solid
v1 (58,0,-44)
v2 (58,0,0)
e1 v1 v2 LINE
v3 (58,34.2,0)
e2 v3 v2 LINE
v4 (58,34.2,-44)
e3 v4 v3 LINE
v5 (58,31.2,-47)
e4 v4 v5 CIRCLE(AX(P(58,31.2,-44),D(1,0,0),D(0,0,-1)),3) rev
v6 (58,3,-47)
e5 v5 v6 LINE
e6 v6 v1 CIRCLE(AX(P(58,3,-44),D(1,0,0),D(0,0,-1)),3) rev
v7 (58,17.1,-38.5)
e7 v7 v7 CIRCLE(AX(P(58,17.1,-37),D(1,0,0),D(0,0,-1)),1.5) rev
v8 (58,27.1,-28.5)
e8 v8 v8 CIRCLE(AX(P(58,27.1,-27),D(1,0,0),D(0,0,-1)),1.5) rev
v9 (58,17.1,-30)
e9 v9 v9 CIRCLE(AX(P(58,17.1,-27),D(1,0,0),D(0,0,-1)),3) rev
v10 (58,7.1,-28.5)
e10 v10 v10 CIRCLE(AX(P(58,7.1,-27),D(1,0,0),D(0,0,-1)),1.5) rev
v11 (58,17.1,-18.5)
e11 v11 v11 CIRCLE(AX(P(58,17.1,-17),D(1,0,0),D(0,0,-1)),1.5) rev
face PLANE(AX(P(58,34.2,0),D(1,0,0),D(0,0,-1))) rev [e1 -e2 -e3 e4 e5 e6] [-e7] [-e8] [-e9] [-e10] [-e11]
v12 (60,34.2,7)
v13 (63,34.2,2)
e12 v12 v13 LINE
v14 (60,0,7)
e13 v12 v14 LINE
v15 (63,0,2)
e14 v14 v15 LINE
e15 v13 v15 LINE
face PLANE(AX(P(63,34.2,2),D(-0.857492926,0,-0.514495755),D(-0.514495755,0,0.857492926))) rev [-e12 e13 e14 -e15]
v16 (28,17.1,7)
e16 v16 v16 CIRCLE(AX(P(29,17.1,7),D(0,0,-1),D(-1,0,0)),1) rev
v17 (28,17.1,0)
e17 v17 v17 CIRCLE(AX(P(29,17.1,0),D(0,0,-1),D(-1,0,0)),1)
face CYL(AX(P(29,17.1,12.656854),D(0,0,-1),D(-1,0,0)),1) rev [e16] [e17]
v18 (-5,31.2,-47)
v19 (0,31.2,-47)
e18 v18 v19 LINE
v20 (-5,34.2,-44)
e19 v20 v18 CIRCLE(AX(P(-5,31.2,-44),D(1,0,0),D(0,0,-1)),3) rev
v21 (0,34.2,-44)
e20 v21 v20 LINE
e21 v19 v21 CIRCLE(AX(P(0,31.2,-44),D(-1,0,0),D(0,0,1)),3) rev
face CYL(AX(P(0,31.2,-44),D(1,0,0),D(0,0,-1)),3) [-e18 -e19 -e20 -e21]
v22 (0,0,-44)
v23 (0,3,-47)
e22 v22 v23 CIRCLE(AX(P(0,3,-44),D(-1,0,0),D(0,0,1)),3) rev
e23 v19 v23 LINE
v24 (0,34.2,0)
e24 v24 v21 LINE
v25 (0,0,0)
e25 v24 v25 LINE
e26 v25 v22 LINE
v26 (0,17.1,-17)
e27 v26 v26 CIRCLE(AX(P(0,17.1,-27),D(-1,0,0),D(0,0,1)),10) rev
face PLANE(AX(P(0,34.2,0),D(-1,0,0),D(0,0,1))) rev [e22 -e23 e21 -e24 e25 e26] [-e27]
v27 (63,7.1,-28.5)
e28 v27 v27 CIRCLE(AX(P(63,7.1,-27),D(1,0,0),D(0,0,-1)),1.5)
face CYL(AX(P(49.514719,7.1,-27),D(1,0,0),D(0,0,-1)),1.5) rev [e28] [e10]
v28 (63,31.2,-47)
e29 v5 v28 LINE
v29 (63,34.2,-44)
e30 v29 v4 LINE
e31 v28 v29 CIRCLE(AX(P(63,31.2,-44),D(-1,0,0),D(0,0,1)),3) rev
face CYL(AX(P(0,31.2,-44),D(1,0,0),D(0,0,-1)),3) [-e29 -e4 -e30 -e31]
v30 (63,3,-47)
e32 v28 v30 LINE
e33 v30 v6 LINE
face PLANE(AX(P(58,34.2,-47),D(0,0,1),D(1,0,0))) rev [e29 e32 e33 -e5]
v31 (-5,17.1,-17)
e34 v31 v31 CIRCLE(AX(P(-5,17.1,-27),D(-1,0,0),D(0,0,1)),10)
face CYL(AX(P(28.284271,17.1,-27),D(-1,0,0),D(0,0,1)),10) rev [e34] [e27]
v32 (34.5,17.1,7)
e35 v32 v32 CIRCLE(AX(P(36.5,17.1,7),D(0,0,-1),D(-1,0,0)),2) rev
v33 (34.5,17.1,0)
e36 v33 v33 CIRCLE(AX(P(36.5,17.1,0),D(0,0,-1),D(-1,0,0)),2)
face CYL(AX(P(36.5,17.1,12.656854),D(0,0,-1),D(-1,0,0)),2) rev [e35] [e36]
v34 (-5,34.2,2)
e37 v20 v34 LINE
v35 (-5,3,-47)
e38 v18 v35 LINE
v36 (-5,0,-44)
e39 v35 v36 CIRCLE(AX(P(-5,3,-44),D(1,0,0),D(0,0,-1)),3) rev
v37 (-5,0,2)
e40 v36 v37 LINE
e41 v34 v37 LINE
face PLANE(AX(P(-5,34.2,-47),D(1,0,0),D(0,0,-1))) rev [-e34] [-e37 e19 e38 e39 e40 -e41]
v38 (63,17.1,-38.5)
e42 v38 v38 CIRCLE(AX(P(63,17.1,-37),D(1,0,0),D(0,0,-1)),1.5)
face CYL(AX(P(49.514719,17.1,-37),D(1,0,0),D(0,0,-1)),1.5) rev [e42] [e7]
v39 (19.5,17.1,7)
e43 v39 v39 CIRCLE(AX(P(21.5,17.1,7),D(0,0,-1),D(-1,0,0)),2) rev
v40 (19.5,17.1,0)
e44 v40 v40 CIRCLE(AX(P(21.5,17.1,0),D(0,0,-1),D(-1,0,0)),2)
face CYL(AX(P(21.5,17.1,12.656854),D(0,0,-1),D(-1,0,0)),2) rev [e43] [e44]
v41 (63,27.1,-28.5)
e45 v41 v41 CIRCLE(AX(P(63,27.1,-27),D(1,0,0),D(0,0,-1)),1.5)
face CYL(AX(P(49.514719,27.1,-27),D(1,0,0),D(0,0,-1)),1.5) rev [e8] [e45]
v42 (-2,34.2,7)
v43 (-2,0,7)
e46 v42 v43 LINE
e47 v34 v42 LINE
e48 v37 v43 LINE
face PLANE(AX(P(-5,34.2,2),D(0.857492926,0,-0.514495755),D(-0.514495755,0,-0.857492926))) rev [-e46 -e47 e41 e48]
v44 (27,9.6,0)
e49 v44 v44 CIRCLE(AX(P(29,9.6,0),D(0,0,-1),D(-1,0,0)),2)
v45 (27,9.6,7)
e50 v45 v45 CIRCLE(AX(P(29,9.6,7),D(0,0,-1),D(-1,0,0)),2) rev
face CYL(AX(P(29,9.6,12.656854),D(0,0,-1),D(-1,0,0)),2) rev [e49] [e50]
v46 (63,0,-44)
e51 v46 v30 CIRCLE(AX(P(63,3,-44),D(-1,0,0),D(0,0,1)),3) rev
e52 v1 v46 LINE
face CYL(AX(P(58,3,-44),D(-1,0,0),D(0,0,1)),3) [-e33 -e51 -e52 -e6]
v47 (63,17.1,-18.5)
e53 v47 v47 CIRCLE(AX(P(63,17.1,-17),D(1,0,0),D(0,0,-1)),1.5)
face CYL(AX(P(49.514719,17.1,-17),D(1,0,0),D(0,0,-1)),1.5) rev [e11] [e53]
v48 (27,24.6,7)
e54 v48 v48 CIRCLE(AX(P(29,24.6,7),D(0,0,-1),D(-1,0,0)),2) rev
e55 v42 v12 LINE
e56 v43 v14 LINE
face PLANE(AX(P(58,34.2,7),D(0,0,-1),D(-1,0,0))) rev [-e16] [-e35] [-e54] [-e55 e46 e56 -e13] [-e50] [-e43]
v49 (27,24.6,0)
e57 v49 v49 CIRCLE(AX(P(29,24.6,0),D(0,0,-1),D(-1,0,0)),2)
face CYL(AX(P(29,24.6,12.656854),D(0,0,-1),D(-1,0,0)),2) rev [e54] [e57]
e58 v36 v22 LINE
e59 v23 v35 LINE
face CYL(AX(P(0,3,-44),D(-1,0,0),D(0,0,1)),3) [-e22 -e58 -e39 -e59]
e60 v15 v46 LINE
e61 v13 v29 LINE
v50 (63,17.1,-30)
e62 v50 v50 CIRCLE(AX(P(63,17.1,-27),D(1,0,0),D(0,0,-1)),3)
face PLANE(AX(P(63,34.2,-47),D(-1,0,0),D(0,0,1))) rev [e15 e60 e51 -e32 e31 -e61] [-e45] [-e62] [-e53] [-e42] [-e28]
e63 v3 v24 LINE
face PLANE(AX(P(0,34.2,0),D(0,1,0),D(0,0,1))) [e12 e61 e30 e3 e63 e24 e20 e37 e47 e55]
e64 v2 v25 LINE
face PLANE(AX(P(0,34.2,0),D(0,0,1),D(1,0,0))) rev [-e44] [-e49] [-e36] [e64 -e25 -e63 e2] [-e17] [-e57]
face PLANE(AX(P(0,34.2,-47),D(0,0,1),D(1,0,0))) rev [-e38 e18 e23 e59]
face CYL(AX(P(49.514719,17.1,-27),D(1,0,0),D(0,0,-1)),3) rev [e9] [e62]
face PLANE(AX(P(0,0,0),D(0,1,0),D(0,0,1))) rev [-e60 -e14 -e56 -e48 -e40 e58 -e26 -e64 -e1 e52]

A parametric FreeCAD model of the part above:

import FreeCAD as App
import Part
import Sketcher


def edges_at(feature, points):
    """Names of the edges that pass closest to the given points."""
    edges = feature.Shape.Edges
    near = lambda p: min(range(len(edges)), key=lambda i: edges[i].distToShape(Part.Vertex(*p))[0])
    return sorted({f"Edge{near(p) + 1}" for p in points})

doc = App.newDocument("Part")
params = doc.addObject("Spreadsheet::Sheet", "Params")
for row, (alias, value) in enumerate([
    ("sketch1_width", "58 mm"),
    ("sketch1_width2", "5 mm"),
    ("sketch1_width3", "62 mm"),
    ("sketch1_height", "47 mm"),
    ("sketch1_height2", "49 mm"),
    ("pad1_length", "34.2 mm"),
    ("sketch2_diameter", "4 mm"),
    ("sketch2_diameter2", "2 mm"),
    ("pocket1_length", "7 mm"),
    ("fillet_radius", "3 mm"),
    ("sketch3_diameter", "20 mm"),
    ("pocket2_length", "5 mm"),
    ("sketch4_diameter", "6 mm"),
    ("sketch4_diameter2", "3 mm"),
    ("pocket3_length", "5 mm"),
], start=1):
    params.set(f"A{row}", alias)
    params.set(f"B{row}", "=" + value)
    params.setAlias(f"B{row}", alias)

body = doc.addObject("PartDesign::Body", "Body")

sketch1 = body.newObject("Sketcher::SketchObject", "Sketch")
sketch1.AttachmentSupport = (doc.getObject("XZ_Plane"), [""])
sketch1.MapMode = "FlatFace"
sketch1.addGeometry([
    Part.LineSegment(App.Vector(58, 0, 0), App.Vector(0, 0, 0)),
    Part.LineSegment(App.Vector(0, 0, 0), App.Vector(0, -47, 0)),
    Part.LineSegment(App.Vector(0, -47, 0), App.Vector(-5, -47, 0)),
    Part.LineSegment(App.Vector(-5, -47, 0), App.Vector(-5, 2, 0)),
    Part.LineSegment(App.Vector(-5, 2, 0), App.Vector(-2, 7, 0)),
    Part.LineSegment(App.Vector(-2, 7, 0), App.Vector(60, 7, 0)),
    Part.LineSegment(App.Vector(60, 7, 0), App.Vector(63, 2, 0)),
    Part.LineSegment(App.Vector(63, 2, 0), App.Vector(63, -47, 0)),
    Part.LineSegment(App.Vector(63, -47, 0), App.Vector(58, -47, 0)),
    Part.LineSegment(App.Vector(58, -47, 0), App.Vector(58, 0, 0)),
], False)
sketch1.addConstraint([
    Sketcher.Constraint("Coincident", 0, 2, 1, 1),
    Sketcher.Constraint("Coincident", 1, 2, 2, 1),
    Sketcher.Constraint("Coincident", 2, 2, 3, 1),
    Sketcher.Constraint("Coincident", 3, 2, 4, 1),
    Sketcher.Constraint("Coincident", 4, 2, 5, 1),
    Sketcher.Constraint("Coincident", 5, 2, 6, 1),
    Sketcher.Constraint("Coincident", 6, 2, 7, 1),
    Sketcher.Constraint("Coincident", 7, 2, 8, 1),
    Sketcher.Constraint("Coincident", 8, 2, 9, 1),
    Sketcher.Constraint("Coincident", 9, 2, 0, 1),
    Sketcher.Constraint("Horizontal", 0),
    Sketcher.Constraint("Vertical", 1),
    Sketcher.Constraint("Horizontal", 2),
    Sketcher.Constraint("Vertical", 3),
    Sketcher.Constraint("Horizontal", 5),
    Sketcher.Constraint("Vertical", 7),
    Sketcher.Constraint("Horizontal", 8),
    Sketcher.Constraint("Vertical", 9),
    Sketcher.Constraint("Coincident", 0, 2, -1, 1),
    Sketcher.Constraint("Horizontal", 3, 2, 6, 2),
    Sketcher.Constraint("Horizontal", 2, 2, 7, 2),
    Sketcher.Constraint("Equal", 2, 8),
    Sketcher.Constraint("Equal", 4, 6),
    Sketcher.Constraint("DistanceX", 0, 2, 0, 1, 58.0),
    Sketcher.Constraint("DistanceX", 2, 2, 2, 1, 5.0),
    Sketcher.Constraint("DistanceX", 5, 1, 5, 2, 62.0),
    Sketcher.Constraint("DistanceY", 1, 2, 1, 1, 47.0),
    Sketcher.Constraint("DistanceY", 3, 1, 3, 2, 49.0),
    Sketcher.Constraint("DistanceY", -1, 1, 4, 2, 7.0),
])
sketch1.setExpression("Constraints[23]", "Params.sketch1_width")
sketch1.setExpression("Constraints[24]", "Params.sketch1_width2")
sketch1.setExpression("Constraints[25]", "Params.sketch1_width3")
sketch1.setExpression("Constraints[26]", "Params.sketch1_height")
sketch1.setExpression("Constraints[27]", "Params.sketch1_height2")
pad1 = body.newObject("PartDesign::Pad", "Pad")
pad1.Profile = sketch1
pad1.setExpression("Length", "Params.pad1_length")
pad1.Reversed = True

sketch2 = body.newObject("Sketcher::SketchObject", "Sketch001")
sketch2.AttachmentSupport = (doc.getObject("XY_Plane"), [""])
sketch2.MapMode = "FlatFace"
sketch2.addGeometry([
    Part.Circle(App.Vector(29, 24.6, 0), App.Vector(0, 0, 1), 2),
    Part.Circle(App.Vector(36.5, 17.1, 0), App.Vector(0, 0, 1), 2),
    Part.Circle(App.Vector(21.5, 17.1, 0), App.Vector(0, 0, 1), 2),
    Part.Circle(App.Vector(29, 9.6, 0), App.Vector(0, 0, 1), 2),
    Part.Circle(App.Vector(29, 17.1, 0), App.Vector(0, 0, 1), 1),
], False)
sketch2.addConstraint([
    Sketcher.Constraint("Equal", 0, 1),
    Sketcher.Constraint("Equal", 1, 2),
    Sketcher.Constraint("Equal", 2, 3),
    Sketcher.Constraint("Horizontal", 1, 3, 2, 3),
    Sketcher.Constraint("Horizontal", 2, 3, 4, 3),
    Sketcher.Constraint("Vertical", 0, 3, 3, 3),
    Sketcher.Constraint("Vertical", 3, 3, 4, 3),
    Sketcher.Constraint("Diameter", 0, 4.0),
    Sketcher.Constraint("Diameter", 4, 2.0),
    Sketcher.Constraint("DistanceX", -1, 1, 0, 3, 29.0),
    Sketcher.Constraint("DistanceX", 2, 3, 1, 3, 15.0),
    Sketcher.Constraint("DistanceY", 3, 3, 0, 3, 15.0),
    Sketcher.Constraint("DistanceY", -1, 1, 0, 3, 24.6),
    Sketcher.Constraint("DistanceX", -1, 1, 1, 3, 36.5),
    Sketcher.Constraint("DistanceY", -1, 1, 1, 3, 17.1),
])
sketch2.setExpression("Constraints[7]", "Params.sketch2_diameter")
sketch2.setExpression("Constraints[8]", "Params.sketch2_diameter2")
pocket1 = body.newObject("PartDesign::Pocket", "Pocket")
pocket1.Profile = sketch2
pocket1.setExpression("Length", "Params.pocket1_length")
pocket1.Reversed = True
doc.recompute()

fillet = body.newObject("PartDesign::Fillet", "Fillet")
fillet.Base = (pocket1, edges_at(pocket1, [
    (60.5, 0, -47),
    (-2.5, 0, -47),
    (60.5, 34.2, -47),
    (-2.5, 34.2, -47),
]))
fillet.setExpression("Radius", "Params.fillet_radius")

sketch3 = body.newObject("Sketcher::SketchObject", "Sketch002")
sketch3.AttachmentSupport = (doc.getObject("YZ_Plane"), [""])
sketch3.MapMode = "FlatFace"
sketch3.AttachmentOffset = App.Placement(App.Vector(0, 0, -5), App.Rotation())
sketch3.addGeometry(Part.Circle(App.Vector(17, -27, 0), App.Vector(0, 0, 1), 10), False)
sketch3.addConstraint([
    Sketcher.Constraint("Diameter", 0, 20.0),
    Sketcher.Constraint("DistanceY", 0, 3, -1, 1, 27.0),
    Sketcher.Constraint("DistanceX", -1, 1, 0, 3, 17.1),
])
sketch3.setExpression("Constraints[0]", "Params.sketch3_diameter")
pocket2 = body.newObject("PartDesign::Pocket", "Pocket001")
pocket2.Profile = sketch3
pocket2.setExpression("Length", "Params.pocket2_length")
pocket2.Reversed = True

sketch4 = body.newObject("Sketcher::SketchObject", "Sketch003")
sketch4.AttachmentSupport = (doc.getObject("YZ_Plane"), [""])
sketch4.MapMode = "FlatFace"
sketch4.AttachmentOffset = App.Placement(App.Vector(0, 0, 63), App.Rotation())
sketch4.addGeometry([
    Part.Circle(App.Vector(17.1, -27, 0), App.Vector(0, 0, 1), 3),
    Part.Circle(App.Vector(27.1, -27, 0), App.Vector(0, 0, 1), 1.5),
    Part.Circle(App.Vector(17.1, -37, 0), App.Vector(0, 0, 1), 1.5),
    Part.Circle(App.Vector(7.1, -27, 0), App.Vector(0, 0, 1), 1.5),
    Part.Circle(App.Vector(17.1, -17, 0), App.Vector(0, 0, 1), 1.5),
], False)
sketch4.addConstraint([
    Sketcher.Constraint("Equal", 1, 2),
    Sketcher.Constraint("Equal", 2, 3),
    Sketcher.Constraint("Equal", 3, 4),
    Sketcher.Constraint("Horizontal", 0, 3, 1, 3),
    Sketcher.Constraint("Horizontal", 1, 3, 3, 3),
    Sketcher.Constraint("Vertical", 0, 3, 2, 3),
    Sketcher.Constraint("Vertical", 2, 3, 4, 3),
    Sketcher.Constraint("Diameter", 0, 6.0),
    Sketcher.Constraint("Diameter", 1, 3.0),
    Sketcher.Constraint("DistanceY", 0, 3, -1, 1, 27.0),
    Sketcher.Constraint("DistanceY", 2, 3, -1, 1, 37.0),
    Sketcher.Constraint("DistanceY", 4, 3, -1, 1, 17.0),
    Sketcher.Constraint("DistanceX", 0, 3, 1, 3, 10.0),
    Sketcher.Constraint("DistanceX", 3, 3, 0, 3, 10.0),
    Sketcher.Constraint("DistanceX", -1, 1, 0, 3, 17.1),
])
sketch4.setExpression("Constraints[7]", "Params.sketch4_diameter")
sketch4.setExpression("Constraints[8]", "Params.sketch4_diameter2")
pocket3 = body.newObject("PartDesign::Pocket", "Pocket002")
pocket3.Profile = sketch4
pocket3.setExpression("Length", "Params.pocket3_length")

doc.recompute()
